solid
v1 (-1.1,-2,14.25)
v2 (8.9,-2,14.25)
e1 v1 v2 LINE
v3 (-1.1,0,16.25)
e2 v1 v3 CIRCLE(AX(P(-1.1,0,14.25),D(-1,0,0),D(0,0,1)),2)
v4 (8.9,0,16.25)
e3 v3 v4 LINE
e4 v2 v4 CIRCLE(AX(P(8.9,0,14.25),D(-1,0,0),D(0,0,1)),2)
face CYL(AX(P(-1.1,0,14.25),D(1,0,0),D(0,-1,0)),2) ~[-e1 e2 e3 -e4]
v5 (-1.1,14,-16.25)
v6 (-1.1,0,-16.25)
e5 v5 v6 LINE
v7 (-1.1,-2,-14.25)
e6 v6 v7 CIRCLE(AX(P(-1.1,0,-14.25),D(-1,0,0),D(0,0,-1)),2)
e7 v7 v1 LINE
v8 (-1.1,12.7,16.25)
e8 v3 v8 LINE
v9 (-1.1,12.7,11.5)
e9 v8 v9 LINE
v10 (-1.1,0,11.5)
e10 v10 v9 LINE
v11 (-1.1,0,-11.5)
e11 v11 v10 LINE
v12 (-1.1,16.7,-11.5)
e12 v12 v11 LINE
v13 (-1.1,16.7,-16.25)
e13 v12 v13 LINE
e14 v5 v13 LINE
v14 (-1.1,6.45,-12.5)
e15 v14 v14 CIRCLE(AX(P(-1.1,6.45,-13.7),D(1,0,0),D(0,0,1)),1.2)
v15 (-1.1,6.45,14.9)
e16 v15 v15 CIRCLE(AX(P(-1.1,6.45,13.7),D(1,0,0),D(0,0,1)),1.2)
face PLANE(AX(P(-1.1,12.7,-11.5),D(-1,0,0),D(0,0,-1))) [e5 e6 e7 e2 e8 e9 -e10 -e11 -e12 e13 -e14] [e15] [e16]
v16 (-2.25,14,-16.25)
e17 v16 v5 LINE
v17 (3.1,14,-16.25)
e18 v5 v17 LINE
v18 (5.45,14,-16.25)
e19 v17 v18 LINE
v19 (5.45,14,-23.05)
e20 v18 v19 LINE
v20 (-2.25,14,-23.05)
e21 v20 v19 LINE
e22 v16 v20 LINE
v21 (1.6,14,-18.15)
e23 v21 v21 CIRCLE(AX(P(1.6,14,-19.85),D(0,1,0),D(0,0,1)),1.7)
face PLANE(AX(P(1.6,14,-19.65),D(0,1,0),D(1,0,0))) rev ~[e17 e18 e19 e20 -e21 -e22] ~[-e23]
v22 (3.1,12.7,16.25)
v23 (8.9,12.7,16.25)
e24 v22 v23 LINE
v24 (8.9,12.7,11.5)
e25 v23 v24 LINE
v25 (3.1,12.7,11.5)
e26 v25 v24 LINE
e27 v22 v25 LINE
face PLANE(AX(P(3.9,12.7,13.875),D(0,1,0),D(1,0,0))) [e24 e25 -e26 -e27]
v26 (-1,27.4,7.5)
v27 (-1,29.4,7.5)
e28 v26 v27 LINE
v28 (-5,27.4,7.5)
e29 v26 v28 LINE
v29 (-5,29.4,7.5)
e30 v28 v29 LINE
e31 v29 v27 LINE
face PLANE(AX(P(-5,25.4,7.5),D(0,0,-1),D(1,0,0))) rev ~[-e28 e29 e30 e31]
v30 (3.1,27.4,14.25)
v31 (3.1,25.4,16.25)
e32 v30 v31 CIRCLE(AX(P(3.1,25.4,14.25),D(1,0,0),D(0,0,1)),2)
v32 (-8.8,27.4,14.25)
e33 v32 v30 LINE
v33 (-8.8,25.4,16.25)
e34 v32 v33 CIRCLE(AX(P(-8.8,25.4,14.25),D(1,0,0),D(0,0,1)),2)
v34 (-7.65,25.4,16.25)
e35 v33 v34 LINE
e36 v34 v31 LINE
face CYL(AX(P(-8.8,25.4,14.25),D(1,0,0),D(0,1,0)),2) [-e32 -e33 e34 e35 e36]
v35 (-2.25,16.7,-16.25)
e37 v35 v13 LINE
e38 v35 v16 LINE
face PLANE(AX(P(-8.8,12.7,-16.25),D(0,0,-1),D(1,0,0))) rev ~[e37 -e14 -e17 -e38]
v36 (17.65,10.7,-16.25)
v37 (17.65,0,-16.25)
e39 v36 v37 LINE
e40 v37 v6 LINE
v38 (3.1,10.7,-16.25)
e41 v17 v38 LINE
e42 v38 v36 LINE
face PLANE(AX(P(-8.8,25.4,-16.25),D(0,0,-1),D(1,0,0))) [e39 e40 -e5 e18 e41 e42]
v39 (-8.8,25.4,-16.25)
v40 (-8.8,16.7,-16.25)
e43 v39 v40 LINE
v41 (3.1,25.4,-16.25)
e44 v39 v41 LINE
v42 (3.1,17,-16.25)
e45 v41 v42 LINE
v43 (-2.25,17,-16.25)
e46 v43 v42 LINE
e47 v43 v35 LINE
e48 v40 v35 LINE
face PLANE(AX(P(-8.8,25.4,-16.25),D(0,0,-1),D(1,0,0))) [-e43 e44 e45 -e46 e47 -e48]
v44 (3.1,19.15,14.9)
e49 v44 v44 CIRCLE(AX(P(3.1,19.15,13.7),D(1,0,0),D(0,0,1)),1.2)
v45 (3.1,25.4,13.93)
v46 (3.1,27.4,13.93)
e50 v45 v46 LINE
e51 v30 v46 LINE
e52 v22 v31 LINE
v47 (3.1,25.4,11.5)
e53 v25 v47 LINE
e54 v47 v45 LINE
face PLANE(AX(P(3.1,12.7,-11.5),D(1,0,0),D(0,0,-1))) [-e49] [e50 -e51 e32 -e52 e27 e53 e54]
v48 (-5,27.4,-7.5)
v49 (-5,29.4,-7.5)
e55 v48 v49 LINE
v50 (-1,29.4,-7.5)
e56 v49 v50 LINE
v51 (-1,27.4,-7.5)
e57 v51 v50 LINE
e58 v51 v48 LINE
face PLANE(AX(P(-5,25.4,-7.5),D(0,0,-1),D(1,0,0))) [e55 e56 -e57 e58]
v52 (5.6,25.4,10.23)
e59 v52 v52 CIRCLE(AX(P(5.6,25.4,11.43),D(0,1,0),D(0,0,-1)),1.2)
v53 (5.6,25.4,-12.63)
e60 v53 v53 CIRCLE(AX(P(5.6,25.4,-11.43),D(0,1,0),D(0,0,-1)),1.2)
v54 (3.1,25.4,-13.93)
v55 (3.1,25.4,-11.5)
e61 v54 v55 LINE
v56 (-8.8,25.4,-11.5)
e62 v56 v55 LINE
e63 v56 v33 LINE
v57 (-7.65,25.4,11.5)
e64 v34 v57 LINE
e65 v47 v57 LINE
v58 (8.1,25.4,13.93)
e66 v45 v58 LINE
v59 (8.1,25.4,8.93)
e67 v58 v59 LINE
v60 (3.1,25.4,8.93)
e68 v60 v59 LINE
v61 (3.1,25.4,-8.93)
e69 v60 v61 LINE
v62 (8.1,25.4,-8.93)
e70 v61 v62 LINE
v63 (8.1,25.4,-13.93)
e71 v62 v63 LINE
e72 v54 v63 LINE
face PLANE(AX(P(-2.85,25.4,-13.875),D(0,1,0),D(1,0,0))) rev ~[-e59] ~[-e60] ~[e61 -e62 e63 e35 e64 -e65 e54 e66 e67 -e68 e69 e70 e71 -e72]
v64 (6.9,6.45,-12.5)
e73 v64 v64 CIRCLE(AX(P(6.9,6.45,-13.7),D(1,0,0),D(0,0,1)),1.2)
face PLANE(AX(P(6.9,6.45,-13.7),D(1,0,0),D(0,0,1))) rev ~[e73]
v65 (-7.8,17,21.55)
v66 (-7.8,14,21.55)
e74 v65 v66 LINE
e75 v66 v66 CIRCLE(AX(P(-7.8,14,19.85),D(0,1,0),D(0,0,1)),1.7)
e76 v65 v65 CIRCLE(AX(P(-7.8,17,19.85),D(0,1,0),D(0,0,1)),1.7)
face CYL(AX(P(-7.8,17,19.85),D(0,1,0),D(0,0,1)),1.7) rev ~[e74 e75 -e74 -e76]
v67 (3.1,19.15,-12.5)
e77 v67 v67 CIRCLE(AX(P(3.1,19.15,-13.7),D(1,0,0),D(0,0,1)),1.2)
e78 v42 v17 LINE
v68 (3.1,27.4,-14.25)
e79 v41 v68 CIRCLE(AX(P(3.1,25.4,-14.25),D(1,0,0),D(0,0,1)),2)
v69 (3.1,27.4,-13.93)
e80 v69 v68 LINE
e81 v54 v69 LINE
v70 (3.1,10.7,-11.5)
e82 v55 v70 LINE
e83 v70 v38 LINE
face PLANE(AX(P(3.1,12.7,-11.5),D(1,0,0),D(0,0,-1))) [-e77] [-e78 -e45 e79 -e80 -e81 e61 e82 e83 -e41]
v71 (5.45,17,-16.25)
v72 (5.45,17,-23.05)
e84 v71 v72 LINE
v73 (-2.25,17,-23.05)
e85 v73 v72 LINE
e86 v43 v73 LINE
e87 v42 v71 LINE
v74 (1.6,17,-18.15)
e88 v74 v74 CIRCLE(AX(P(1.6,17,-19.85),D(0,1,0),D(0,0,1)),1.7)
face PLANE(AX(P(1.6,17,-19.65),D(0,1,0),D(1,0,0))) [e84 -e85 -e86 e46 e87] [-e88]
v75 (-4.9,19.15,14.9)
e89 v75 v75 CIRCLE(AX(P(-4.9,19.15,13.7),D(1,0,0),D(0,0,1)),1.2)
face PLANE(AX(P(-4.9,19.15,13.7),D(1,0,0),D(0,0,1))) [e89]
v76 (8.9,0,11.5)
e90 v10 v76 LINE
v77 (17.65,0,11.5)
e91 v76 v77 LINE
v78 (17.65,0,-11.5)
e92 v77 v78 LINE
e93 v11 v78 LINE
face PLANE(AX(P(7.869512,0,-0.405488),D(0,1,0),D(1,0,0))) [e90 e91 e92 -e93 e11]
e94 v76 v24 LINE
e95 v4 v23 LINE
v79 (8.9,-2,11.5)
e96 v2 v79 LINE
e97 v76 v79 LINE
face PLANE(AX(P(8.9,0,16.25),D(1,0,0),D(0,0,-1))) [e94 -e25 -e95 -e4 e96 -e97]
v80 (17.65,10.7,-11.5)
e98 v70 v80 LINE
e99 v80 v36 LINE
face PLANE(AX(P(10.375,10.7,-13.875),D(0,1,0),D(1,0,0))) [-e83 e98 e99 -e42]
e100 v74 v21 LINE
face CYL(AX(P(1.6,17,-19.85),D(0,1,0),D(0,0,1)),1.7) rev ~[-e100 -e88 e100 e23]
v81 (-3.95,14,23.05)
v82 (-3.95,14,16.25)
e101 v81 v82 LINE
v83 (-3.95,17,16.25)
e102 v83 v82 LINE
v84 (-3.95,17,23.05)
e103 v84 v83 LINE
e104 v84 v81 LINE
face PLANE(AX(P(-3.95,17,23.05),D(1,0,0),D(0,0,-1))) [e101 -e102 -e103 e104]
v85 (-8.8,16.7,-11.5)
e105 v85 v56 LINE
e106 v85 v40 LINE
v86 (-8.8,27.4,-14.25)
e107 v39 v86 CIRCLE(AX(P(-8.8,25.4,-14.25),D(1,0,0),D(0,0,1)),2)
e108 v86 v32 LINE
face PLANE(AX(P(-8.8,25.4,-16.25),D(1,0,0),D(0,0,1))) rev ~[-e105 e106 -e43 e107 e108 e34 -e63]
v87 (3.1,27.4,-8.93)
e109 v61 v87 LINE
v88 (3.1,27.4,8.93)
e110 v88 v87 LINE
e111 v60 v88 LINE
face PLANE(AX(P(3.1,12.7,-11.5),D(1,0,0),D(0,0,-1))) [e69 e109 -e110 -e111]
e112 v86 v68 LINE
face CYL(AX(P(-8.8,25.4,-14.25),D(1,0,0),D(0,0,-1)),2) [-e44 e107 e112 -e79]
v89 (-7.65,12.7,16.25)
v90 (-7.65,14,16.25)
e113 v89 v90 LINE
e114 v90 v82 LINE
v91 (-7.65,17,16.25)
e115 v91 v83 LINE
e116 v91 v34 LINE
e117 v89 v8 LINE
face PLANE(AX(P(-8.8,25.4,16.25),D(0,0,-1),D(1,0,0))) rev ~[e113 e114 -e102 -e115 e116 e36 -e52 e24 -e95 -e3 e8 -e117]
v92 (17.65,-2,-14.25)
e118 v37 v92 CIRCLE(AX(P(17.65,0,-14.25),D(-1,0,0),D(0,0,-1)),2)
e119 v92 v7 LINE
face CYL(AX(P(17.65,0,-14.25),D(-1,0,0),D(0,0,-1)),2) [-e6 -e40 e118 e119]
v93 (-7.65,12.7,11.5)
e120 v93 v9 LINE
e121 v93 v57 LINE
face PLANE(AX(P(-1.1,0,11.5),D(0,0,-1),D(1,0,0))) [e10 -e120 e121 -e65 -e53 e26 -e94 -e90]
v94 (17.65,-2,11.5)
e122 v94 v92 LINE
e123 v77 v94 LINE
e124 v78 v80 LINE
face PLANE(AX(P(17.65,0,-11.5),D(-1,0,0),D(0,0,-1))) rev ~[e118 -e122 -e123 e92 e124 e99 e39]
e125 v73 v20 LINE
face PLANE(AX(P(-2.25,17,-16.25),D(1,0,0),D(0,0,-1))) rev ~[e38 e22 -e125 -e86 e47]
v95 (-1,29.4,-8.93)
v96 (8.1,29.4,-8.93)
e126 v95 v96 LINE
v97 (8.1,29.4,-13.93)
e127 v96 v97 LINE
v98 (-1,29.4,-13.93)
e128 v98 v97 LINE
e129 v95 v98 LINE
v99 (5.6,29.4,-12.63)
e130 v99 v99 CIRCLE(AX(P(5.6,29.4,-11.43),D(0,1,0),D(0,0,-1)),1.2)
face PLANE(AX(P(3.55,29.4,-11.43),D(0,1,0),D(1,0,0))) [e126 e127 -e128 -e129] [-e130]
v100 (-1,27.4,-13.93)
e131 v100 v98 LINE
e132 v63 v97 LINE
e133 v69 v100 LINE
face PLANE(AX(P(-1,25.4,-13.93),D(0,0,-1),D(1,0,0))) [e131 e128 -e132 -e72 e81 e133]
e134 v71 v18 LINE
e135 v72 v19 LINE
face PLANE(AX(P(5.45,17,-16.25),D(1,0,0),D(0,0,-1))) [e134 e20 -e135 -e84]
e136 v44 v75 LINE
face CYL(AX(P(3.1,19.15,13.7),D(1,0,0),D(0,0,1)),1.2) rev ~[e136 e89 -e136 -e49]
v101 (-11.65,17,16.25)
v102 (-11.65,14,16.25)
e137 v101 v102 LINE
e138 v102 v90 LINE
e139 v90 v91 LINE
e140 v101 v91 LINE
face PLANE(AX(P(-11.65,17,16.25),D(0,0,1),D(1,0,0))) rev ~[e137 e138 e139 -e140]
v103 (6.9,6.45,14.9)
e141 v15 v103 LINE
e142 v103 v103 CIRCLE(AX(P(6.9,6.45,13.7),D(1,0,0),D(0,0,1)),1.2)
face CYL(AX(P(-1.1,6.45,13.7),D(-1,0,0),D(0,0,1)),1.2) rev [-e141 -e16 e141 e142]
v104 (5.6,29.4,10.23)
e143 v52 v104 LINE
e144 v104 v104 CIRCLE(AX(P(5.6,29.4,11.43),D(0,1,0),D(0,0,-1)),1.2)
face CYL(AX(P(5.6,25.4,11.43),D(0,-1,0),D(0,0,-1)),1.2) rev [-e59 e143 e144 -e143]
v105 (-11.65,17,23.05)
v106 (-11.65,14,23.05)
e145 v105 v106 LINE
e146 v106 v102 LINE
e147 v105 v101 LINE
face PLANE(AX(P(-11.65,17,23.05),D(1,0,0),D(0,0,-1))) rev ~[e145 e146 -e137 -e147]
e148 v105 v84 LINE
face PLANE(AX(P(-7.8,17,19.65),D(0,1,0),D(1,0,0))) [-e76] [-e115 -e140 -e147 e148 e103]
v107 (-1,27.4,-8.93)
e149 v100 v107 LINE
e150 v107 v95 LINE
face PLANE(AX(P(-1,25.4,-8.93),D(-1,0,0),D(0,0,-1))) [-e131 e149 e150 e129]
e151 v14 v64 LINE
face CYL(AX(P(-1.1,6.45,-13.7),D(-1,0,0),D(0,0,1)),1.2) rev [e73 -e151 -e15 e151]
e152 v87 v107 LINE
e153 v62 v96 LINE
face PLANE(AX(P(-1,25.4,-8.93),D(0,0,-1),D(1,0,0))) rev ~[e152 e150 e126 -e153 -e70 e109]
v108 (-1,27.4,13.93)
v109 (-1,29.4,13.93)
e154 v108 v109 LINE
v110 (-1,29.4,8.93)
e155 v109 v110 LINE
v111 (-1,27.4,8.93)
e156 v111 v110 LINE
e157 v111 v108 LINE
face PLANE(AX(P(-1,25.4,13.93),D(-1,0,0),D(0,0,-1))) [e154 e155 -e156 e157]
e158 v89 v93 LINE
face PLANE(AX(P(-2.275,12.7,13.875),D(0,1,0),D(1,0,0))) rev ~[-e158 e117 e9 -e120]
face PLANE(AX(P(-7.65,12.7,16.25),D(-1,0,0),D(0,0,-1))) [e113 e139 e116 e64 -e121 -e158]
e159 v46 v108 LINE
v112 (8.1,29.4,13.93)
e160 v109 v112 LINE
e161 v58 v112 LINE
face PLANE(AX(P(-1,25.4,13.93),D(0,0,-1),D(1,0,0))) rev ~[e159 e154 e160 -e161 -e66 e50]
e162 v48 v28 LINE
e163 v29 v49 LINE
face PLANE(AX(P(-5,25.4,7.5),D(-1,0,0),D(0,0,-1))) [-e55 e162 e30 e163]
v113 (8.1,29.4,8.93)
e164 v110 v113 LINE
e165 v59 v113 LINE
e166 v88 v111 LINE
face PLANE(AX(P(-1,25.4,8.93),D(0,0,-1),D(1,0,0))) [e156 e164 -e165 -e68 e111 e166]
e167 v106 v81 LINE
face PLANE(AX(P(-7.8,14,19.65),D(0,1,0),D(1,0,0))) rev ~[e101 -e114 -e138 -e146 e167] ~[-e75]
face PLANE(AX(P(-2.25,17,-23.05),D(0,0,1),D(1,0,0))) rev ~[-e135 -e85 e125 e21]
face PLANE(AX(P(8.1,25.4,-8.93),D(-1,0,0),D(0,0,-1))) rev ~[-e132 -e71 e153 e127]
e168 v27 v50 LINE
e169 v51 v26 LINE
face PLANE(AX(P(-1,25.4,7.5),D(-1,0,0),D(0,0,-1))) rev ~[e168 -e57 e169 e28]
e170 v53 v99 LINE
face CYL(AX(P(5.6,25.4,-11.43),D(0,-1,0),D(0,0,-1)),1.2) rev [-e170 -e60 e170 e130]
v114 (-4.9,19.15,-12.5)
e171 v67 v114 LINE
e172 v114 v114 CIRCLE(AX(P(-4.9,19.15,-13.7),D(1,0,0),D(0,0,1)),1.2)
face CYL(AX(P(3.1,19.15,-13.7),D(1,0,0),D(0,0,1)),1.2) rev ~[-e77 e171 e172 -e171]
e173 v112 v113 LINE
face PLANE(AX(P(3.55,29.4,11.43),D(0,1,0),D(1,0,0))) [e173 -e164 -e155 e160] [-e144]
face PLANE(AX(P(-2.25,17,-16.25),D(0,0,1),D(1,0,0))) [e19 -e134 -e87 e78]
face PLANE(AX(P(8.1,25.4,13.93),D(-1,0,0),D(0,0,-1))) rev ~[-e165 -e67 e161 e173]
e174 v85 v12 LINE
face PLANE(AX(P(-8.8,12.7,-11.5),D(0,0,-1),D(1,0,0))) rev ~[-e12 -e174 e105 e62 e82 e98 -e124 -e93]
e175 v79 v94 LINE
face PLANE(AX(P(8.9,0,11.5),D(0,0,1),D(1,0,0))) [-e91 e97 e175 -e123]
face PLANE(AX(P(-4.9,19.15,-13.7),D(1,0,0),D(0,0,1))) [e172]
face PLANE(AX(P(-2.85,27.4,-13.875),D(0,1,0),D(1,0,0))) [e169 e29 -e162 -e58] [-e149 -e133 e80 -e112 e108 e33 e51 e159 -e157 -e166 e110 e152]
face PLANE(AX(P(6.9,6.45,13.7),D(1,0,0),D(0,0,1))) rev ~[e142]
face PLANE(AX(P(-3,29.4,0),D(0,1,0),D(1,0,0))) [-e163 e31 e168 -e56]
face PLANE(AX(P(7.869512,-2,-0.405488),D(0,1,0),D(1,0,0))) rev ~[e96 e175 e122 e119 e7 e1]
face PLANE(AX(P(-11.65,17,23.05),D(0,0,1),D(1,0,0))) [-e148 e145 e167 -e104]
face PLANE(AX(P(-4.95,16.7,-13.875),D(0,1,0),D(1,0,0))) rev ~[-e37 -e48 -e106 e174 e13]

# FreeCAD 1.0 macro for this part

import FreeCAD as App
import Part
import Sketcher
Q = App.Units.Quantity


def edges_at(feature, points):
    """Names of the edges that pass closest to the given points."""
    edges = feature.Shape.Edges
    near = lambda p: min(range(len(edges)), key=lambda i: edges[i].distToShape(Part.Vertex(*p))[0])
    return sorted({f"Edge{near(p) + 1}" for p in points})

doc = App.newDocument("Part")
params = doc.addObject("Spreadsheet::Sheet", "Params")
for row, (alias, value) in enumerate([
    ("sketch1_width", "10 mm"),
    ("sketch1_height", "32.5 mm"),
    ("sketch1_width2", "8.75 mm"),
    ("sketch1_height2", "4.75 mm"),
    ("pad1_length", "2 mm"),
    ("sketch2_width", "10 mm"),
    ("sketch2_width2", "18.75 mm"),
    ("sketch2_height", "4.75 mm"),
    ("pad2_length", "12.7 mm"),
    ("sketch3_width", "11.9 mm"),
    ("sketch3_width2", "10.75 mm"),
    ("sketch3_height", "4.75 mm"),
    ("pad3_length", "12.7 mm"),
    ("sketch4_width", "11.9 mm"),
    ("sketch4_height", "32.5 mm"),
    ("pad4_length", "2 mm"),
    ("sketch5_diameter", "2.4 mm"),
    ("pocket1_length", "8 mm"),
    ("sketch6_diameter", "2.4 mm"),
    ("pocket2_length", "8 mm"),
    ("sketch7_diameter", "3.4 mm"),
    ("sketch7_width", "7.7 mm"),
    ("sketch7_height", "6.8 mm"),
    ("pad5_length", "3 mm"),
    ("fillet_radius", "2 mm"),
    ("sketch8_width", "14.55 mm"),
    ("sketch8_height", "4.75 mm"),
    ("pocket3_length", "2 mm"),
    ("sketch9_width", "7.7 mm"),
    ("sketch9_height", "4.75 mm"),
    ("pocket4_length", "4 mm"),
    ("sketch10_diameter", "2.4 mm"),
    ("sketch10_width", "4 mm"),
    ("sketch10_height", "5 mm"),
    ("sketch10_height2", "15 mm"),
    ("sketch10_width2", "9.1 mm"),
    ("pad6_length", "2 mm"),
    ("pad6_length2", "2 mm"),
], start=1):
    params.set(f"A{row}", alias)
    params.set(f"B{row}", "=" + value)
    params.setAlias(f"B{row}", alias)

body = doc.addObject("PartDesign::Body", "Body")

# Sketch on XZ plane
sketch1 = body.newObject("Sketcher::SketchObject", "Sketch")
sketch1.AttachmentSupport = (doc.getObject("XZ_Plane"), [""])
sketch1.MapMode = "FlatFace"
sketch1.addGeometry(Part.LineSegment(App.Vector(-1.1, -16.2, 0), App.Vector(-1.1, 16.2, 0)), False)
sketch1.addGeometry(Part.LineSegment(App.Vector(-1.1, 16.2, 0), App.Vector(8.9, 16.2, 0)), False)
sketch1.addGeometry(Part.LineSegment(App.Vector(8.9, 16.2, 0), App.Vector(8.9, 11.5, 0)), False)
sketch1.addGeometry(Part.LineSegment(App.Vector(8.9, 11.5, 0), App.Vector(17.6, 11.5, 0)), False)
sketch1.addGeometry(Part.LineSegment(App.Vector(17.6, 11.5, 0), App.Vector(17.6, -16.2, 0)), False)
sketch1.addGeometry(Part.LineSegment(App.Vector(17.6, -16.2, 0), App.Vector(-1.1, -16.2, 0)), False)
sketch1.addConstraint(Sketcher.Constraint("Coincident", 0, 2, 1, 1))
sketch1.addConstraint(Sketcher.Constraint("Coincident", 1, 2, 2, 1))
sketch1.addConstraint(Sketcher.Constraint("Coincident", 2, 2, 3, 1))
sketch1.addConstraint(Sketcher.Constraint("Coincident", 3, 2, 4, 1))
sketch1.addConstraint(Sketcher.Constraint("Coincident", 4, 2, 5, 1))
sketch1.addConstraint(Sketcher.Constraint("Coincident", 5, 2, 0, 1))
sketch1.addConstraint(Sketcher.Constraint("Vertical", 0))
sketch1.addConstraint(Sketcher.Constraint("Horizontal", 1))
sketch1.addConstraint(Sketcher.Constraint("Vertical", 2))
sketch1.addConstraint(Sketcher.Constraint("Horizontal", 3))
sketch1.addConstraint(Sketcher.Constraint("Vertical", 4))
sketch1.addConstraint(Sketcher.Constraint("Horizontal", 5))
sketch1.addConstraint(Sketcher.Constraint("DistanceX", 1, 1, 1, 2, Q("10 mm")))
sketch1.addConstraint(Sketcher.Constraint("DistanceY", 0, 1, 0, 2, Q("32.5 mm")))
sketch1.addConstraint(Sketcher.Constraint("DistanceX", 3, 1, 3, 2, Q("8.75 mm")))
sketch1.addConstraint(Sketcher.Constraint("DistanceY", 2, 2, 2, 1, Q("4.75 mm")))
sketch1.addConstraint(Sketcher.Constraint("DistanceX", 0, 2, -1, 1, Q("1.1 mm")))
sketch1.addConstraint(Sketcher.Constraint("DistanceY", -1, 1, 2, 2, Q("11.5 mm")))
sketch1.setExpression("Constraints[12]", "Params.sketch1_width")
sketch1.setExpression("Constraints[13]", "Params.sketch1_height")
sketch1.setExpression("Constraints[14]", "Params.sketch1_width2")
sketch1.setExpression("Constraints[15]", "Params.sketch1_height2")
pad1 = body.newObject("PartDesign::Pad", "Pad")
pad1.Profile = sketch1
pad1.setExpression("Length", "Params.pad1_length")

# Sketch on XZ plane
sketch2 = body.newObject("Sketcher::SketchObject", "Sketch001")
sketch2.AttachmentSupport = (doc.getObject("XZ_Plane"), [""])
sketch2.MapMode = "FlatFace"
sketch2.addGeometry(Part.LineSegment(App.Vector(-1.1, -16.2, 0), App.Vector(-1.1, -11.5, 0)), False)
sketch2.addGeometry(Part.LineSegment(App.Vector(-1.1, -11.5, 0), App.Vector(17.6, -11.5, 0)), False)
sketch2.addGeometry(Part.LineSegment(App.Vector(17.6, -11.5, 0), App.Vector(17.6, -16.2, 0)), False)
sketch2.addGeometry(Part.LineSegment(App.Vector(17.6, -16.2, 0), App.Vector(-1.1, -16.2, 0)), False)
sketch2.addGeometry(Part.LineSegment(App.Vector(-1.1, 11.5, 0), App.Vector(-1.1, 16.2, 0)), False)
sketch2.addGeometry(Part.LineSegment(App.Vector(-1.1, 16.2, 0), App.Vector(8.9, 16.2, 0)), False)
sketch2.addGeometry(Part.LineSegment(App.Vector(8.9, 16.2, 0), App.Vector(8.9, 11.5, 0)), False)
sketch2.addGeometry(Part.LineSegment(App.Vector(8.9, 11.5, 0), App.Vector(-1.1, 11.5, 0)), False)
sketch2.addConstraint(Sketcher.Constraint("Coincident", 0, 2, 1, 1))
sketch2.addConstraint(Sketcher.Constraint("Coincident", 1, 2, 2, 1))
sketch2.addConstraint(Sketcher.Constraint("Coincident", 2, 2, 3, 1))
sketch2.addConstraint(Sketcher.Constraint("Coincident", 3, 2, 0, 1))
sketch2.addConstraint(Sketcher.Constraint("Coincident", 4, 2, 5, 1))
sketch2.addConstraint(Sketcher.Constraint("Coincident", 5, 2, 6, 1))
sketch2.addConstraint(Sketcher.Constraint("Coincident", 6, 2, 7, 1))
sketch2.addConstraint(Sketcher.Constraint("Coincident", 7, 2, 4, 1))
sketch2.addConstraint(Sketcher.Constraint("Vertical", 0))
sketch2.addConstraint(Sketcher.Constraint("Horizontal", 1))
sketch2.addConstraint(Sketcher.Constraint("Vertical", 2))
sketch2.addConstraint(Sketcher.Constraint("Horizontal", 3))
sketch2.addConstraint(Sketcher.Constraint("Vertical", 4))
sketch2.addConstraint(Sketcher.Constraint("Horizontal", 5))
sketch2.addConstraint(Sketcher.Constraint("Vertical", 6))
sketch2.addConstraint(Sketcher.Constraint("Horizontal", 7))
sketch2.addConstraint(Sketcher.Constraint("Symmetric", 3, 2, 4, 2, -1))
sketch2.addConstraint(Sketcher.Constraint("Equal", 2, 4))
sketch2.addConstraint(Sketcher.Constraint("DistanceX", 5, 1, 5, 2, Q("10 mm")))
sketch2.addConstraint(Sketcher.Constraint("DistanceY", 1, 2, 6, 2, Q("23 mm")))
sketch2.addConstraint(Sketcher.Constraint("DistanceX", 1, 1, 1, 2, Q("18.75 mm")))
sketch2.addConstraint(Sketcher.Constraint("DistanceY", 0, 1, 0, 2, Q("4.75 mm")))
sketch2.addConstraint(Sketcher.Constraint("DistanceX", 0, 2, -1, 1, Q("1.1 mm")))
sketch2.setExpression("Constraints[18]", "Params.sketch2_width")
sketch2.setExpression("Constraints[20]", "Params.sketch2_width2")
sketch2.setExpression("Constraints[21]", "Params.sketch2_height")
pad2 = body.newObject("PartDesign::Pad", "Pad001")
pad2.Profile = sketch2
pad2.setExpression("Length", "Params.pad2_length")
pad2.Reversed = True

# Sketch on XZ plane
sketch3 = body.newObject("Sketcher::SketchObject", "Sketch002")
sketch3.AttachmentSupport = (doc.getObject("XZ_Plane"), [""])
sketch3.MapMode = "FlatFace"
sketch3.AttachmentOffset = App.Placement(App.Vector(0, 0, -12.7), App.Rotation())
sketch3.addGeometry(Part.LineSegment(App.Vector(-8.8, -16.2, 0), App.Vector(-8.8, -11.5, 0)), False)
sketch3.addGeometry(Part.LineSegment(App.Vector(-8.8, -11.5, 0), App.Vector(3.1, -11.5, 0)), False)
sketch3.addGeometry(Part.LineSegment(App.Vector(3.1, -11.5, 0), App.Vector(3.1, -16.2, 0)), False)
sketch3.addGeometry(Part.LineSegment(App.Vector(3.1, -16.2, 0), App.Vector(-8.8, -16.2, 0)), False)
sketch3.addGeometry(Part.LineSegment(App.Vector(-7.7, 11.5, 0), App.Vector(-7.7, 16.2, 0)), False)
sketch3.addGeometry(Part.LineSegment(App.Vector(-7.7, 16.2, 0), App.Vector(3.1, 16.2, 0)), False)
sketch3.addGeometry(Part.LineSegment(App.Vector(3.1, 16.2, 0), App.Vector(3.1, 11.5, 0)), False)
sketch3.addGeometry(Part.LineSegment(App.Vector(3.1, 11.5, 0), App.Vector(-7.7, 11.5, 0)), False)
sketch3.addConstraint(Sketcher.Constraint("Coincident", 0, 2, 1, 1))
sketch3.addConstraint(Sketcher.Constraint("Coincident", 1, 2, 2, 1))
sketch3.addConstraint(Sketcher.Constraint("Coincident", 2, 2, 3, 1))
sketch3.addConstraint(Sketcher.Constraint("Coincident", 3, 2, 0, 1))
sketch3.addConstraint(Sketcher.Constraint("Coincident", 4, 2, 5, 1))
sketch3.addConstraint(Sketcher.Constraint("Coincident", 5, 2, 6, 1))
sketch3.addConstraint(Sketcher.Constraint("Coincident", 6, 2, 7, 1))
sketch3.addConstraint(Sketcher.Constraint("Coincident", 7, 2, 4, 1))
sketch3.addConstraint(Sketcher.Constraint("Vertical", 0))
sketch3.addConstraint(Sketcher.Constraint("Horizontal", 1))
sketch3.addConstraint(Sketcher.Constraint("Vertical", 2))
sketch3.addConstraint(Sketcher.Constraint("Horizontal", 3))
sketch3.addConstraint(Sketcher.Constraint("Vertical", 4))
sketch3.addConstraint(Sketcher.Constraint("Horizontal", 5))
sketch3.addConstraint(Sketcher.Constraint("Vertical", 6))
sketch3.addConstraint(Sketcher.Constraint("Horizontal", 7))
sketch3.addConstraint(Sketcher.Constraint("Symmetric", 2, 2, 5, 2, -1))
sketch3.addConstraint(Sketcher.Constraint("Equal", 2, 4))
sketch3.addConstraint(Sketcher.Constraint("DistanceX", 1, 1, 1, 2, Q("11.9 mm")))
sketch3.addConstraint(Sketcher.Constraint("DistanceY", 1, 2, 6, 2, Q("23 mm")))
sketch3.addConstraint(Sketcher.Constraint("DistanceX", 5, 1, 5, 2, Q("10.75 mm")))
sketch3.addConstraint(Sketcher.Constraint("DistanceY", 0, 1, 0, 2, Q("4.75 mm")))
sketch3.addConstraint(Sketcher.Constraint("DistanceX", 0, 2, -1, 1, Q("8.8 mm")))
sketch3.setExpression("Constraints[18]", "Params.sketch3_width")
sketch3.setExpression("Constraints[20]", "Params.sketch3_width2")
sketch3.setExpression("Constraints[21]", "Params.sketch3_height")
pad3 = body.newObject("PartDesign::Pad", "Pad002")
pad3.Profile = sketch3
pad3.setExpression("Length", "Params.pad3_length")
pad3.Reversed = True

# Sketch on XZ plane
sketch4 = body.newObject("Sketcher::SketchObject", "Sketch003")
sketch4.AttachmentSupport = (doc.getObject("XZ_Plane"), [""])
sketch4.MapMode = "FlatFace"
sketch4.AttachmentOffset = App.Placement(App.Vector(0, 0, -25.4), App.Rotation())
sketch4.addGeometry(Part.LineSegment(App.Vector(-9, -16, 0), App.Vector(-9, 16, 0)), False)
sketch4.addGeometry(Part.LineSegment(App.Vector(-9, 16, 0), App.Vector(3, 16, 0)), False)
sketch4.addGeometry(Part.LineSegment(App.Vector(3, 16, 0), App.Vector(3, -16, 0)), False)
sketch4.addGeometry(Part.LineSegment(App.Vector(3, -16, 0), App.Vector(-9, -16, 0)), False)
sketch4.addConstraint(Sketcher.Constraint("Coincident", 0, 2, 1, 1))
sketch4.addConstraint(Sketcher.Constraint("Coincident", 1, 2, 2, 1))
sketch4.addConstraint(Sketcher.Constraint("Coincident", 2, 2, 3, 1))
sketch4.addConstraint(Sketcher.Constraint("Coincident", 3, 2, 0, 1))
sketch4.addConstraint(Sketcher.Constraint("Vertical", 0))
sketch4.addConstraint(Sketcher.Constraint("Horizontal", 1))
sketch4.addConstraint(Sketcher.Constraint("Vertical", 2))
sketch4.addConstraint(Sketcher.Constraint("Horizontal", 3))
sketch4.addConstraint(Sketcher.Constraint("DistanceX", 1, 1, 1, 2, Q("11.9 mm")))
sketch4.addConstraint(Sketcher.Constraint("DistanceY", 0, 1, 0, 2, Q("32.5 mm")))
sketch4.addConstraint(Sketcher.Constraint("DistanceX", 0, 2, -1, 1, Q("8.8 mm")))
sketch4.addConstraint(Sketcher.Constraint("DistanceY", -1, 1, 0, 2, Q("16.25 mm")))
sketch4.setExpression("Constraints[8]", "Params.sketch4_width")
sketch4.setExpression("Constraints[9]", "Params.sketch4_height")
pad4 = body.newObject("PartDesign::Pad", "Pad003")
pad4.Profile = sketch4
pad4.setExpression("Length", "Params.pad4_length")
pad4.Reversed = True

# Sketch on YZ plane
sketch5 = body.newObject("Sketcher::SketchObject", "Sketch004")
sketch5.AttachmentSupport = (doc.getObject("YZ_Plane"), [""])
sketch5.MapMode = "FlatFace"
sketch5.AttachmentOffset = App.Placement(App.Vector(0, 0, -1.1), App.Rotation())
sketch5.addGeometry(Part.Circle(App.Vector(6.5, 13.7, 0), App.Vector(0, 0, 1), 1.2), False)
sketch5.addGeometry(Part.Circle(App.Vector(6.5, -13.7, 0), App.Vector(0, 0, 1), 1.2), False)
sketch5.addConstraint(Sketcher.Constraint("Equal", 0, 1))
sketch5.addConstraint(Sketcher.Constraint("Symmetric", 0, 3, 1, 3, -1))
sketch5.addConstraint(Sketcher.Constraint("Diameter", 0, Q("2.4 mm")))
sketch5.addConstraint(Sketcher.Constraint("DistanceY", -1, 1, 0, 3, Q("13.7 mm")))
sketch5.addConstraint(Sketcher.Constraint("DistanceX", -1, 1, 0, 3, Q("6.45 mm")))
sketch5.setExpression("Constraints[2]", "Params.sketch5_diameter")
pocket1 = body.newObject("PartDesign::Pocket", "Pocket")
pocket1.Profile = sketch5
pocket1.setExpression("Length", "Params.pocket1_length")
pocket1.Reversed = True

# Sketch on YZ plane
sketch6 = body.newObject("Sketcher::SketchObject", "Sketch005")
sketch6.AttachmentSupport = (doc.getObject("YZ_Plane"), [""])
sketch6.MapMode = "FlatFace"
sketch6.AttachmentOffset = App.Placement(App.Vector(0, 0, 3.1), App.Rotation())
sketch6.addGeometry(Part.Circle(App.Vector(19.1, -13.7, 0), App.Vector(0, 0, 1), 1.2), False)
sketch6.addGeometry(Part.Circle(App.Vector(19.1, 13.7, 0), App.Vector(0, 0, 1), 1.2), False)
sketch6.addConstraint(Sketcher.Constraint("Equal", 0, 1))
sketch6.addConstraint(Sketcher.Constraint("Symmetric", 0, 3, 1, 3, -1))
sketch6.addConstraint(Sketcher.Constraint("Diameter", 0, Q("2.4 mm")))
sketch6.addConstraint(Sketcher.Constraint("DistanceY", 0, 3, -1, 1, Q("13.7 mm")))
sketch6.addConstraint(Sketcher.Constraint("DistanceX", -1, 1, 0, 3, Q("19.15 mm")))
sketch6.setExpression("Constraints[2]", "Params.sketch6_diameter")
pocket2 = body.newObject("PartDesign::Pocket", "Pocket001")
pocket2.Profile = sketch6
pocket2.setExpression("Length", "Params.pocket2_length")

# Sketch on XZ plane
sketch7 = body.newObject("Sketcher::SketchObject", "Sketch006")
sketch7.AttachmentSupport = (doc.getObject("XZ_Plane"), [""])
sketch7.MapMode = "FlatFace"
sketch7.AttachmentOffset = App.Placement(App.Vector(0, 0, -17), App.Rotation())
sketch7.addGeometry(Part.LineSegment(App.Vector(-2.2, -23.1, 0), App.Vector(-2.2, -16.2, 0)), False)
sketch7.addGeometry(Part.LineSegment(App.Vector(-2.2, -16.2, 0), App.Vector(5.5, -16.2, 0)), False)
sketch7.addGeometry(Part.LineSegment(App.Vector(5.5, -16.2, 0), App.Vector(5.5, -23.1, 0)), False)
sketch7.addGeometry(Part.LineSegment(App.Vector(5.5, -23.1, 0), App.Vector(-2.2, -23.1, 0)), False)
sketch7.addGeometry(Part.Circle(App.Vector(1.6, -19.9, 0), App.Vector(0, 0, 1), 1.7), False)
sketch7.addGeometry(Part.LineSegment(App.Vector(-11.7, 16.2, 0), App.Vector(-11.7, 23.1, 0)), False)
sketch7.addGeometry(Part.LineSegment(App.Vector(-11.7, 23.1, 0), App.Vector(-4, 23.1, 0)), False)
sketch7.addGeometry(Part.LineSegment(App.Vector(-4, 23.1, 0), App.Vector(-4, 16.2, 0)), False)
sketch7.addGeometry(Part.LineSegment(App.Vector(-4, 16.2, 0), App.Vector(-11.7, 16.2, 0)), False)
sketch7.addGeometry(Part.Circle(App.Vector(-7.8, 19.9, 0), App.Vector(0, 0, 1), 1.7), False)
sketch7.addConstraint(Sketcher.Constraint("Coincident", 0, 2, 1, 1))
sketch7.addConstraint(Sketcher.Constraint("Coincident", 1, 2, 2, 1))
sketch7.addConstraint(Sketcher.Constraint("Coincident", 2, 2, 3, 1))
sketch7.addConstraint(Sketcher.Constraint("Coincident", 3, 2, 0, 1))
sketch7.addConstraint(Sketcher.Constraint("Coincident", 5, 2, 6, 1))
sketch7.addConstraint(Sketcher.Constraint("Coincident", 6, 2, 7, 1))
sketch7.addConstraint(Sketcher.Constraint("Coincident", 7, 2, 8, 1))
sketch7.addConstraint(Sketcher.Constraint("Coincident", 8, 2, 5, 1))
sketch7.addConstraint(Sketcher.Constraint("Vertical", 0))
sketch7.addConstraint(Sketcher.Constraint("Horizontal", 1))
sketch7.addConstraint(Sketcher.Constraint("Vertical", 2))
sketch7.addConstraint(Sketcher.Constraint("Horizontal", 3))
sketch7.addConstraint(Sketcher.Constraint("Vertical", 5))
sketch7.addConstraint(Sketcher.Constraint("Horizontal", 6))
sketch7.addConstraint(Sketcher.Constraint("Vertical", 7))
sketch7.addConstraint(Sketcher.Constraint("Horizontal", 8))
sketch7.addConstraint(Sketcher.Constraint("Equal", 4, 9))
sketch7.addConstraint(Sketcher.Constraint("Equal", 3, 6))
sketch7.addConstraint(Sketcher.Constraint("Equal", 2, 5))
sketch7.addConstraint(Sketcher.Constraint("Diameter", 4, Q("3.4 mm")))
sketch7.addConstraint(Sketcher.Constraint("DistanceX", 1, 1, 1, 2, Q("7.7 mm")))
sketch7.addConstraint(Sketcher.Constraint("DistanceY", 0, 1, 0, 2, Q("6.8 mm")))
sketch7.addConstraint(Sketcher.Constraint("DistanceX", -1, 1, 4, 3, Q("1.6 mm")))
sketch7.addConstraint(Sketcher.Constraint("DistanceX", 9, 3, -1, 1, Q("7.8 mm")))
sketch7.addConstraint(Sketcher.Constraint("DistanceY", 4, 3, 9, 3, Q("39.7 mm")))
sketch7.addConstraint(Sketcher.Constraint("DistanceY", 4, 3, 0, 2, Q("3.6 mm")))
sketch7.addConstraint(Sketcher.Constraint("DistanceY", 9, 3, 5, 2, Q("3.2 mm")))
sketch7.addConstraint(Sketcher.Constraint("DistanceX", 5, 2, 0, 2, Q("9.4 mm")))
sketch7.addConstraint(Sketcher.Constraint("DistanceY", 4, 3, -1, 1, Q("19.85 mm")))
sketch7.addConstraint(Sketcher.Constraint("DistanceX", 0, 2, -1, 1, Q("2.25 mm")))
sketch7.setExpression("Constraints[19]", "Params.sketch7_diameter")
sketch7.setExpression("Constraints[20]", "Params.sketch7_width")
sketch7.setExpression("Constraints[21]", "Params.sketch7_height")
pad5 = body.newObject("PartDesign::Pad", "Pad004")
pad5.Profile = sketch7
pad5.setExpression("Length", "Params.pad5_length")
doc.recompute()

fillet = body.newObject("PartDesign::Fillet", "Fillet")
fillet.Base = (pad5, edges_at(pad5, [
    (3.9, -2, 16.25),
    (-2.85, 27.4, 16.25),
    (8.275, -2, -16.25),
    (-2.85, 27.4, -16.25),
]))
fillet.setExpression("Radius", "Params.fillet_radius")

# Sketch on XZ plane
sketch8 = body.newObject("Sketcher::SketchObject", "Sketch007")
sketch8.AttachmentSupport = (doc.getObject("XZ_Plane"), [""])
sketch8.MapMode = "FlatFace"
sketch8.AttachmentOffset = App.Placement(App.Vector(0, 0, -12.7), App.Rotation())
sketch8.addGeometry(Part.LineSegment(App.Vector(3.1, -16.2, 0), App.Vector(3.1, -11.5, 0)), False)
sketch8.addGeometry(Part.LineSegment(App.Vector(3.1, -11.5, 0), App.Vector(17.6, -11.5, 0)), False)
sketch8.addGeometry(Part.LineSegment(App.Vector(17.6, -11.5, 0), App.Vector(17.6, -16.2, 0)), False)
sketch8.addGeometry(Part.LineSegment(App.Vector(17.6, -16.2, 0), App.Vector(3.1, -16.2, 0)), False)
sketch8.addConstraint(Sketcher.Constraint("Coincident", 0, 2, 1, 1))
sketch8.addConstraint(Sketcher.Constraint("Coincident", 1, 2, 2, 1))
sketch8.addConstraint(Sketcher.Constraint("Coincident", 2, 2, 3, 1))
sketch8.addConstraint(Sketcher.Constraint("Coincident", 3, 2, 0, 1))
sketch8.addConstraint(Sketcher.Constraint("Vertical", 0))
sketch8.addConstraint(Sketcher.Constraint("Horizontal", 1))
sketch8.addConstraint(Sketcher.Constraint("Vertical", 2))
sketch8.addConstraint(Sketcher.Constraint("Horizontal", 3))
sketch8.addConstraint(Sketcher.Constraint("DistanceX", 1, 1, 1, 2, Q("14.55 mm")))
sketch8.addConstraint(Sketcher.Constraint("DistanceY", 0, 1, 0, 2, Q("4.75 mm")))
sketch8.addConstraint(Sketcher.Constraint("DistanceX", -1, 1, 0, 2, Q("3.1 mm")))
sketch8.addConstraint(Sketcher.Constraint("DistanceY", 0, 2, -1, 1, Q("11.5 mm")))
sketch8.setExpression("Constraints[8]", "Params.sketch8_width")
sketch8.setExpression("Constraints[9]", "Params.sketch8_height")
pocket3 = body.newObject("PartDesign::Pocket", "Pocket002")
pocket3.Profile = sketch8
pocket3.setExpression("Length", "Params.pocket3_length")
pocket3.Reversed = True

# Sketch on XZ plane
sketch9 = body.newObject("Sketcher::SketchObject", "Sketch008")
sketch9.AttachmentSupport = (doc.getObject("XZ_Plane"), [""])
sketch9.MapMode = "FlatFace"
sketch9.AttachmentOffset = App.Placement(App.Vector(0, 0, -12.7), App.Rotation())
sketch9.addGeometry(Part.LineSegment(App.Vector(-8.8, -16.2, 0), App.Vector(-8.8, -11.5, 0)), False)
sketch9.addGeometry(Part.LineSegment(App.Vector(-8.8, -11.5, 0), App.Vector(-1.1, -11.5, 0)), False)
sketch9.addGeometry(Part.LineSegment(App.Vector(-1.1, -11.5, 0), App.Vector(-1.1, -16.2, 0)), False)
sketch9.addGeometry(Part.LineSegment(App.Vector(-1.1, -16.2, 0), App.Vector(-8.8, -16.2, 0)), False)
sketch9.addConstraint(Sketcher.Constraint("Coincident", 0, 2, 1, 1))
sketch9.addConstraint(Sketcher.Constraint("Coincident", 1, 2, 2, 1))
sketch9.addConstraint(Sketcher.Constraint("Coincident", 2, 2, 3, 1))
sketch9.addConstraint(Sketcher.Constraint("Coincident", 3, 2, 0, 1))
sketch9.addConstraint(Sketcher.Constraint("Vertical", 0))
sketch9.addConstraint(Sketcher.Constraint("Horizontal", 1))
sketch9.addConstraint(Sketcher.Constraint("Vertical", 2))
sketch9.addConstraint(Sketcher.Constraint("Horizontal", 3))
sketch9.addConstraint(Sketcher.Constraint("DistanceX", 1, 1, 1, 2, Q("7.7 mm")))
sketch9.addConstraint(Sketcher.Constraint("DistanceY", 0, 1, 0, 2, Q("4.75 mm")))
sketch9.addConstraint(Sketcher.Constraint("DistanceX", 0, 2, -1, 1, Q("8.8 mm")))
sketch9.addConstraint(Sketcher.Constraint("DistanceY", 0, 2, -1, 1, Q("11.5 mm")))
sketch9.setExpression("Constraints[8]", "Params.sketch9_width")
sketch9.setExpression("Constraints[9]", "Params.sketch9_height")
pocket4 = body.newObject("PartDesign::Pocket", "Pocket003")
pocket4.Profile = sketch9
pocket4.setExpression("Length", "Params.pocket4_length")

# Sketch on XZ plane
sketch10 = body.newObject("Sketcher::SketchObject", "Sketch009")
sketch10.AttachmentSupport = (doc.getObject("XZ_Plane"), [""])
sketch10.MapMode = "FlatFace"
sketch10.AttachmentOffset = App.Placement(App.Vector(0, 0, -27.4), App.Rotation())
sketch10.addGeometry(Part.LineSegment(App.Vector(-1, -13.9, 0), App.Vector(-1, -8.9, 0)), False)
sketch10.addGeometry(Part.LineSegment(App.Vector(-1, -8.9, 0), App.Vector(8.1, -8.9, 0)), False)
sketch10.addGeometry(Part.LineSegment(App.Vector(8.1, -8.9, 0), App.Vector(8.1, -13.9, 0)), False)
sketch10.addGeometry(Part.LineSegment(App.Vector(8.1, -13.9, 0), App.Vector(-1, -13.9, 0)), False)
sketch10.addGeometry(Part.Circle(App.Vector(5.6, -11.4, 0), App.Vector(0, 0, 1), 1.2), False)
sketch10.addGeometry(Part.LineSegment(App.Vector(-5, -7.5, 0), App.Vector(-5, 7.5, 0)), False)
sketch10.addGeometry(Part.LineSegment(App.Vector(-5, 7.5, 0), App.Vector(-1, 7.5, 0)), False)
sketch10.addGeometry(Part.LineSegment(App.Vector(-1, 7.5, 0), App.Vector(-1, -7.5, 0)), False)
sketch10.addGeometry(Part.LineSegment(App.Vector(-1, -7.5, 0), App.Vector(-5, -7.5, 0)), False)
sketch10.addGeometry(Part.LineSegment(App.Vector(-1, 8.9, 0), App.Vector(-1, 13.9, 0)), False)
sketch10.addGeometry(Part.LineSegment(App.Vector(-1, 13.9, 0), App.Vector(8.1, 13.9, 0)), False)
sketch10.addGeometry(Part.LineSegment(App.Vector(8.1, 13.9, 0), App.Vector(8.1, 8.9, 0)), False)
sketch10.addGeometry(Part.LineSegment(App.Vector(8.1, 8.9, 0), App.Vector(-1, 8.9, 0)), False)
sketch10.addGeometry(Part.Circle(App.Vector(5.6, 11.4, 0), App.Vector(0, 0, 1), 1.2), False)
sketch10.addConstraint(Sketcher.Constraint("Coincident", 0, 2, 1, 1))
sketch10.addConstraint(Sketcher.Constraint("Coincident", 1, 2, 2, 1))
sketch10.addConstraint(Sketcher.Constraint("Coincident", 2, 2, 3, 1))
sketch10.addConstraint(Sketcher.Constraint("Coincident", 3, 2, 0, 1))
sketch10.addConstraint(Sketcher.Constraint("Coincident", 5, 2, 6, 1))
sketch10.addConstraint(Sketcher.Constraint("Coincident", 6, 2, 7, 1))
sketch10.addConstraint(Sketcher.Constraint("Coincident", 7, 2, 8, 1))
sketch10.addConstraint(Sketcher.Constraint("Coincident", 8, 2, 5, 1))
sketch10.addConstraint(Sketcher.Constraint("Coincident", 9, 2, 10, 1))
sketch10.addConstraint(Sketcher.Constraint("Coincident", 10, 2, 11, 1))
sketch10.addConstraint(Sketcher.Constraint("Coincident", 11, 2, 12, 1))
sketch10.addConstraint(Sketcher.Constraint("Coincident", 12, 2, 9, 1))
sketch10.addConstraint(Sketcher.Constraint("Vertical", 0))
sketch10.addConstraint(Sketcher.Constraint("Horizontal", 1))
sketch10.addConstraint(Sketcher.Constraint("Vertical", 2))
sketch10.addConstraint(Sketcher.Constraint("Horizontal", 3))
sketch10.addConstraint(Sketcher.Constraint("Vertical", 5))
sketch10.addConstraint(Sketcher.Constraint("Horizontal", 6))
sketch10.addConstraint(Sketcher.Constraint("Vertical", 7))
sketch10.addConstraint(Sketcher.Constraint("Horizontal", 8))
sketch10.addConstraint(Sketcher.Constraint("Vertical", 9))
sketch10.addConstraint(Sketcher.Constraint("Horizontal", 10))
sketch10.addConstraint(Sketcher.Constraint("Vertical", 11))
sketch10.addConstraint(Sketcher.Constraint("Horizontal", 12))
sketch10.addConstraint(Sketcher.Constraint("Equal", 4, 13))
sketch10.addConstraint(Sketcher.Constraint("Symmetric", 4, 3, 13, 3, -1))
sketch10.addConstraint(Sketcher.Constraint("Symmetric", 3, 2, 9, 2, -1))
sketch10.addConstraint(Sketcher.Constraint("Symmetric", 1, 2, 11, 2, -1))
sketch10.addConstraint(Sketcher.Constraint("Vertical", 3, 2, 6, 2))
sketch10.addConstraint(Sketcher.Constraint("Diameter", 4, Q("2.4 mm")))
sketch10.addConstraint(Sketcher.Constraint("DistanceX", 6, 1, 6, 2, Q("4 mm")))
sketch10.addConstraint(Sketcher.Constraint("DistanceY", 0, 1, 0, 2, Q("5 mm")))
sketch10.addConstraint(Sketcher.Constraint("DistanceY", 5, 1, 5, 2, Q("15 mm")))
sketch10.addConstraint(Sketcher.Constraint("DistanceX", 1, 1, 1, 2, Q("9.1 mm")))
sketch10.addConstraint(Sketcher.Constraint("DistanceX", 0, 2, -1, 1, Q("1 mm")))
sketch10.addConstraint(Sketcher.Constraint("DistanceX", -1, 1, 4, 3, Q("5.6 mm")))
sketch10.addConstraint(Sketcher.Constraint("DistanceY", -1, 1, 5, 2, Q("7.5 mm")))
sketch10.addConstraint(Sketcher.Constraint("DistanceY", 4, 3, 0, 2, Q("2.5 mm")))
sketch10.addConstraint(Sketcher.Constraint("DistanceY", 4, 3, -1, 1, Q("11.43 mm")))
sketch10.setExpression("Constraints[29]", "Params.sketch10_diameter")
sketch10.setExpression("Constraints[30]", "Params.sketch10_width")
sketch10.setExpression("Constraints[31]", "Params.sketch10_height")
sketch10.setExpression("Constraints[32]", "Params.sketch10_height2")
sketch10.setExpression("Constraints[33]", "Params.sketch10_width2")
pad6 = body.newObject("PartDesign::Pad", "Pad005")
pad6.Profile = sketch10
pad6.Type = "TwoLengths"
pad6.setExpression("Length", "Params.pad6_length")
pad6.setExpression("Length2", "Params.pad6_length2")
pad6.Reversed = True

doc.recompute()
